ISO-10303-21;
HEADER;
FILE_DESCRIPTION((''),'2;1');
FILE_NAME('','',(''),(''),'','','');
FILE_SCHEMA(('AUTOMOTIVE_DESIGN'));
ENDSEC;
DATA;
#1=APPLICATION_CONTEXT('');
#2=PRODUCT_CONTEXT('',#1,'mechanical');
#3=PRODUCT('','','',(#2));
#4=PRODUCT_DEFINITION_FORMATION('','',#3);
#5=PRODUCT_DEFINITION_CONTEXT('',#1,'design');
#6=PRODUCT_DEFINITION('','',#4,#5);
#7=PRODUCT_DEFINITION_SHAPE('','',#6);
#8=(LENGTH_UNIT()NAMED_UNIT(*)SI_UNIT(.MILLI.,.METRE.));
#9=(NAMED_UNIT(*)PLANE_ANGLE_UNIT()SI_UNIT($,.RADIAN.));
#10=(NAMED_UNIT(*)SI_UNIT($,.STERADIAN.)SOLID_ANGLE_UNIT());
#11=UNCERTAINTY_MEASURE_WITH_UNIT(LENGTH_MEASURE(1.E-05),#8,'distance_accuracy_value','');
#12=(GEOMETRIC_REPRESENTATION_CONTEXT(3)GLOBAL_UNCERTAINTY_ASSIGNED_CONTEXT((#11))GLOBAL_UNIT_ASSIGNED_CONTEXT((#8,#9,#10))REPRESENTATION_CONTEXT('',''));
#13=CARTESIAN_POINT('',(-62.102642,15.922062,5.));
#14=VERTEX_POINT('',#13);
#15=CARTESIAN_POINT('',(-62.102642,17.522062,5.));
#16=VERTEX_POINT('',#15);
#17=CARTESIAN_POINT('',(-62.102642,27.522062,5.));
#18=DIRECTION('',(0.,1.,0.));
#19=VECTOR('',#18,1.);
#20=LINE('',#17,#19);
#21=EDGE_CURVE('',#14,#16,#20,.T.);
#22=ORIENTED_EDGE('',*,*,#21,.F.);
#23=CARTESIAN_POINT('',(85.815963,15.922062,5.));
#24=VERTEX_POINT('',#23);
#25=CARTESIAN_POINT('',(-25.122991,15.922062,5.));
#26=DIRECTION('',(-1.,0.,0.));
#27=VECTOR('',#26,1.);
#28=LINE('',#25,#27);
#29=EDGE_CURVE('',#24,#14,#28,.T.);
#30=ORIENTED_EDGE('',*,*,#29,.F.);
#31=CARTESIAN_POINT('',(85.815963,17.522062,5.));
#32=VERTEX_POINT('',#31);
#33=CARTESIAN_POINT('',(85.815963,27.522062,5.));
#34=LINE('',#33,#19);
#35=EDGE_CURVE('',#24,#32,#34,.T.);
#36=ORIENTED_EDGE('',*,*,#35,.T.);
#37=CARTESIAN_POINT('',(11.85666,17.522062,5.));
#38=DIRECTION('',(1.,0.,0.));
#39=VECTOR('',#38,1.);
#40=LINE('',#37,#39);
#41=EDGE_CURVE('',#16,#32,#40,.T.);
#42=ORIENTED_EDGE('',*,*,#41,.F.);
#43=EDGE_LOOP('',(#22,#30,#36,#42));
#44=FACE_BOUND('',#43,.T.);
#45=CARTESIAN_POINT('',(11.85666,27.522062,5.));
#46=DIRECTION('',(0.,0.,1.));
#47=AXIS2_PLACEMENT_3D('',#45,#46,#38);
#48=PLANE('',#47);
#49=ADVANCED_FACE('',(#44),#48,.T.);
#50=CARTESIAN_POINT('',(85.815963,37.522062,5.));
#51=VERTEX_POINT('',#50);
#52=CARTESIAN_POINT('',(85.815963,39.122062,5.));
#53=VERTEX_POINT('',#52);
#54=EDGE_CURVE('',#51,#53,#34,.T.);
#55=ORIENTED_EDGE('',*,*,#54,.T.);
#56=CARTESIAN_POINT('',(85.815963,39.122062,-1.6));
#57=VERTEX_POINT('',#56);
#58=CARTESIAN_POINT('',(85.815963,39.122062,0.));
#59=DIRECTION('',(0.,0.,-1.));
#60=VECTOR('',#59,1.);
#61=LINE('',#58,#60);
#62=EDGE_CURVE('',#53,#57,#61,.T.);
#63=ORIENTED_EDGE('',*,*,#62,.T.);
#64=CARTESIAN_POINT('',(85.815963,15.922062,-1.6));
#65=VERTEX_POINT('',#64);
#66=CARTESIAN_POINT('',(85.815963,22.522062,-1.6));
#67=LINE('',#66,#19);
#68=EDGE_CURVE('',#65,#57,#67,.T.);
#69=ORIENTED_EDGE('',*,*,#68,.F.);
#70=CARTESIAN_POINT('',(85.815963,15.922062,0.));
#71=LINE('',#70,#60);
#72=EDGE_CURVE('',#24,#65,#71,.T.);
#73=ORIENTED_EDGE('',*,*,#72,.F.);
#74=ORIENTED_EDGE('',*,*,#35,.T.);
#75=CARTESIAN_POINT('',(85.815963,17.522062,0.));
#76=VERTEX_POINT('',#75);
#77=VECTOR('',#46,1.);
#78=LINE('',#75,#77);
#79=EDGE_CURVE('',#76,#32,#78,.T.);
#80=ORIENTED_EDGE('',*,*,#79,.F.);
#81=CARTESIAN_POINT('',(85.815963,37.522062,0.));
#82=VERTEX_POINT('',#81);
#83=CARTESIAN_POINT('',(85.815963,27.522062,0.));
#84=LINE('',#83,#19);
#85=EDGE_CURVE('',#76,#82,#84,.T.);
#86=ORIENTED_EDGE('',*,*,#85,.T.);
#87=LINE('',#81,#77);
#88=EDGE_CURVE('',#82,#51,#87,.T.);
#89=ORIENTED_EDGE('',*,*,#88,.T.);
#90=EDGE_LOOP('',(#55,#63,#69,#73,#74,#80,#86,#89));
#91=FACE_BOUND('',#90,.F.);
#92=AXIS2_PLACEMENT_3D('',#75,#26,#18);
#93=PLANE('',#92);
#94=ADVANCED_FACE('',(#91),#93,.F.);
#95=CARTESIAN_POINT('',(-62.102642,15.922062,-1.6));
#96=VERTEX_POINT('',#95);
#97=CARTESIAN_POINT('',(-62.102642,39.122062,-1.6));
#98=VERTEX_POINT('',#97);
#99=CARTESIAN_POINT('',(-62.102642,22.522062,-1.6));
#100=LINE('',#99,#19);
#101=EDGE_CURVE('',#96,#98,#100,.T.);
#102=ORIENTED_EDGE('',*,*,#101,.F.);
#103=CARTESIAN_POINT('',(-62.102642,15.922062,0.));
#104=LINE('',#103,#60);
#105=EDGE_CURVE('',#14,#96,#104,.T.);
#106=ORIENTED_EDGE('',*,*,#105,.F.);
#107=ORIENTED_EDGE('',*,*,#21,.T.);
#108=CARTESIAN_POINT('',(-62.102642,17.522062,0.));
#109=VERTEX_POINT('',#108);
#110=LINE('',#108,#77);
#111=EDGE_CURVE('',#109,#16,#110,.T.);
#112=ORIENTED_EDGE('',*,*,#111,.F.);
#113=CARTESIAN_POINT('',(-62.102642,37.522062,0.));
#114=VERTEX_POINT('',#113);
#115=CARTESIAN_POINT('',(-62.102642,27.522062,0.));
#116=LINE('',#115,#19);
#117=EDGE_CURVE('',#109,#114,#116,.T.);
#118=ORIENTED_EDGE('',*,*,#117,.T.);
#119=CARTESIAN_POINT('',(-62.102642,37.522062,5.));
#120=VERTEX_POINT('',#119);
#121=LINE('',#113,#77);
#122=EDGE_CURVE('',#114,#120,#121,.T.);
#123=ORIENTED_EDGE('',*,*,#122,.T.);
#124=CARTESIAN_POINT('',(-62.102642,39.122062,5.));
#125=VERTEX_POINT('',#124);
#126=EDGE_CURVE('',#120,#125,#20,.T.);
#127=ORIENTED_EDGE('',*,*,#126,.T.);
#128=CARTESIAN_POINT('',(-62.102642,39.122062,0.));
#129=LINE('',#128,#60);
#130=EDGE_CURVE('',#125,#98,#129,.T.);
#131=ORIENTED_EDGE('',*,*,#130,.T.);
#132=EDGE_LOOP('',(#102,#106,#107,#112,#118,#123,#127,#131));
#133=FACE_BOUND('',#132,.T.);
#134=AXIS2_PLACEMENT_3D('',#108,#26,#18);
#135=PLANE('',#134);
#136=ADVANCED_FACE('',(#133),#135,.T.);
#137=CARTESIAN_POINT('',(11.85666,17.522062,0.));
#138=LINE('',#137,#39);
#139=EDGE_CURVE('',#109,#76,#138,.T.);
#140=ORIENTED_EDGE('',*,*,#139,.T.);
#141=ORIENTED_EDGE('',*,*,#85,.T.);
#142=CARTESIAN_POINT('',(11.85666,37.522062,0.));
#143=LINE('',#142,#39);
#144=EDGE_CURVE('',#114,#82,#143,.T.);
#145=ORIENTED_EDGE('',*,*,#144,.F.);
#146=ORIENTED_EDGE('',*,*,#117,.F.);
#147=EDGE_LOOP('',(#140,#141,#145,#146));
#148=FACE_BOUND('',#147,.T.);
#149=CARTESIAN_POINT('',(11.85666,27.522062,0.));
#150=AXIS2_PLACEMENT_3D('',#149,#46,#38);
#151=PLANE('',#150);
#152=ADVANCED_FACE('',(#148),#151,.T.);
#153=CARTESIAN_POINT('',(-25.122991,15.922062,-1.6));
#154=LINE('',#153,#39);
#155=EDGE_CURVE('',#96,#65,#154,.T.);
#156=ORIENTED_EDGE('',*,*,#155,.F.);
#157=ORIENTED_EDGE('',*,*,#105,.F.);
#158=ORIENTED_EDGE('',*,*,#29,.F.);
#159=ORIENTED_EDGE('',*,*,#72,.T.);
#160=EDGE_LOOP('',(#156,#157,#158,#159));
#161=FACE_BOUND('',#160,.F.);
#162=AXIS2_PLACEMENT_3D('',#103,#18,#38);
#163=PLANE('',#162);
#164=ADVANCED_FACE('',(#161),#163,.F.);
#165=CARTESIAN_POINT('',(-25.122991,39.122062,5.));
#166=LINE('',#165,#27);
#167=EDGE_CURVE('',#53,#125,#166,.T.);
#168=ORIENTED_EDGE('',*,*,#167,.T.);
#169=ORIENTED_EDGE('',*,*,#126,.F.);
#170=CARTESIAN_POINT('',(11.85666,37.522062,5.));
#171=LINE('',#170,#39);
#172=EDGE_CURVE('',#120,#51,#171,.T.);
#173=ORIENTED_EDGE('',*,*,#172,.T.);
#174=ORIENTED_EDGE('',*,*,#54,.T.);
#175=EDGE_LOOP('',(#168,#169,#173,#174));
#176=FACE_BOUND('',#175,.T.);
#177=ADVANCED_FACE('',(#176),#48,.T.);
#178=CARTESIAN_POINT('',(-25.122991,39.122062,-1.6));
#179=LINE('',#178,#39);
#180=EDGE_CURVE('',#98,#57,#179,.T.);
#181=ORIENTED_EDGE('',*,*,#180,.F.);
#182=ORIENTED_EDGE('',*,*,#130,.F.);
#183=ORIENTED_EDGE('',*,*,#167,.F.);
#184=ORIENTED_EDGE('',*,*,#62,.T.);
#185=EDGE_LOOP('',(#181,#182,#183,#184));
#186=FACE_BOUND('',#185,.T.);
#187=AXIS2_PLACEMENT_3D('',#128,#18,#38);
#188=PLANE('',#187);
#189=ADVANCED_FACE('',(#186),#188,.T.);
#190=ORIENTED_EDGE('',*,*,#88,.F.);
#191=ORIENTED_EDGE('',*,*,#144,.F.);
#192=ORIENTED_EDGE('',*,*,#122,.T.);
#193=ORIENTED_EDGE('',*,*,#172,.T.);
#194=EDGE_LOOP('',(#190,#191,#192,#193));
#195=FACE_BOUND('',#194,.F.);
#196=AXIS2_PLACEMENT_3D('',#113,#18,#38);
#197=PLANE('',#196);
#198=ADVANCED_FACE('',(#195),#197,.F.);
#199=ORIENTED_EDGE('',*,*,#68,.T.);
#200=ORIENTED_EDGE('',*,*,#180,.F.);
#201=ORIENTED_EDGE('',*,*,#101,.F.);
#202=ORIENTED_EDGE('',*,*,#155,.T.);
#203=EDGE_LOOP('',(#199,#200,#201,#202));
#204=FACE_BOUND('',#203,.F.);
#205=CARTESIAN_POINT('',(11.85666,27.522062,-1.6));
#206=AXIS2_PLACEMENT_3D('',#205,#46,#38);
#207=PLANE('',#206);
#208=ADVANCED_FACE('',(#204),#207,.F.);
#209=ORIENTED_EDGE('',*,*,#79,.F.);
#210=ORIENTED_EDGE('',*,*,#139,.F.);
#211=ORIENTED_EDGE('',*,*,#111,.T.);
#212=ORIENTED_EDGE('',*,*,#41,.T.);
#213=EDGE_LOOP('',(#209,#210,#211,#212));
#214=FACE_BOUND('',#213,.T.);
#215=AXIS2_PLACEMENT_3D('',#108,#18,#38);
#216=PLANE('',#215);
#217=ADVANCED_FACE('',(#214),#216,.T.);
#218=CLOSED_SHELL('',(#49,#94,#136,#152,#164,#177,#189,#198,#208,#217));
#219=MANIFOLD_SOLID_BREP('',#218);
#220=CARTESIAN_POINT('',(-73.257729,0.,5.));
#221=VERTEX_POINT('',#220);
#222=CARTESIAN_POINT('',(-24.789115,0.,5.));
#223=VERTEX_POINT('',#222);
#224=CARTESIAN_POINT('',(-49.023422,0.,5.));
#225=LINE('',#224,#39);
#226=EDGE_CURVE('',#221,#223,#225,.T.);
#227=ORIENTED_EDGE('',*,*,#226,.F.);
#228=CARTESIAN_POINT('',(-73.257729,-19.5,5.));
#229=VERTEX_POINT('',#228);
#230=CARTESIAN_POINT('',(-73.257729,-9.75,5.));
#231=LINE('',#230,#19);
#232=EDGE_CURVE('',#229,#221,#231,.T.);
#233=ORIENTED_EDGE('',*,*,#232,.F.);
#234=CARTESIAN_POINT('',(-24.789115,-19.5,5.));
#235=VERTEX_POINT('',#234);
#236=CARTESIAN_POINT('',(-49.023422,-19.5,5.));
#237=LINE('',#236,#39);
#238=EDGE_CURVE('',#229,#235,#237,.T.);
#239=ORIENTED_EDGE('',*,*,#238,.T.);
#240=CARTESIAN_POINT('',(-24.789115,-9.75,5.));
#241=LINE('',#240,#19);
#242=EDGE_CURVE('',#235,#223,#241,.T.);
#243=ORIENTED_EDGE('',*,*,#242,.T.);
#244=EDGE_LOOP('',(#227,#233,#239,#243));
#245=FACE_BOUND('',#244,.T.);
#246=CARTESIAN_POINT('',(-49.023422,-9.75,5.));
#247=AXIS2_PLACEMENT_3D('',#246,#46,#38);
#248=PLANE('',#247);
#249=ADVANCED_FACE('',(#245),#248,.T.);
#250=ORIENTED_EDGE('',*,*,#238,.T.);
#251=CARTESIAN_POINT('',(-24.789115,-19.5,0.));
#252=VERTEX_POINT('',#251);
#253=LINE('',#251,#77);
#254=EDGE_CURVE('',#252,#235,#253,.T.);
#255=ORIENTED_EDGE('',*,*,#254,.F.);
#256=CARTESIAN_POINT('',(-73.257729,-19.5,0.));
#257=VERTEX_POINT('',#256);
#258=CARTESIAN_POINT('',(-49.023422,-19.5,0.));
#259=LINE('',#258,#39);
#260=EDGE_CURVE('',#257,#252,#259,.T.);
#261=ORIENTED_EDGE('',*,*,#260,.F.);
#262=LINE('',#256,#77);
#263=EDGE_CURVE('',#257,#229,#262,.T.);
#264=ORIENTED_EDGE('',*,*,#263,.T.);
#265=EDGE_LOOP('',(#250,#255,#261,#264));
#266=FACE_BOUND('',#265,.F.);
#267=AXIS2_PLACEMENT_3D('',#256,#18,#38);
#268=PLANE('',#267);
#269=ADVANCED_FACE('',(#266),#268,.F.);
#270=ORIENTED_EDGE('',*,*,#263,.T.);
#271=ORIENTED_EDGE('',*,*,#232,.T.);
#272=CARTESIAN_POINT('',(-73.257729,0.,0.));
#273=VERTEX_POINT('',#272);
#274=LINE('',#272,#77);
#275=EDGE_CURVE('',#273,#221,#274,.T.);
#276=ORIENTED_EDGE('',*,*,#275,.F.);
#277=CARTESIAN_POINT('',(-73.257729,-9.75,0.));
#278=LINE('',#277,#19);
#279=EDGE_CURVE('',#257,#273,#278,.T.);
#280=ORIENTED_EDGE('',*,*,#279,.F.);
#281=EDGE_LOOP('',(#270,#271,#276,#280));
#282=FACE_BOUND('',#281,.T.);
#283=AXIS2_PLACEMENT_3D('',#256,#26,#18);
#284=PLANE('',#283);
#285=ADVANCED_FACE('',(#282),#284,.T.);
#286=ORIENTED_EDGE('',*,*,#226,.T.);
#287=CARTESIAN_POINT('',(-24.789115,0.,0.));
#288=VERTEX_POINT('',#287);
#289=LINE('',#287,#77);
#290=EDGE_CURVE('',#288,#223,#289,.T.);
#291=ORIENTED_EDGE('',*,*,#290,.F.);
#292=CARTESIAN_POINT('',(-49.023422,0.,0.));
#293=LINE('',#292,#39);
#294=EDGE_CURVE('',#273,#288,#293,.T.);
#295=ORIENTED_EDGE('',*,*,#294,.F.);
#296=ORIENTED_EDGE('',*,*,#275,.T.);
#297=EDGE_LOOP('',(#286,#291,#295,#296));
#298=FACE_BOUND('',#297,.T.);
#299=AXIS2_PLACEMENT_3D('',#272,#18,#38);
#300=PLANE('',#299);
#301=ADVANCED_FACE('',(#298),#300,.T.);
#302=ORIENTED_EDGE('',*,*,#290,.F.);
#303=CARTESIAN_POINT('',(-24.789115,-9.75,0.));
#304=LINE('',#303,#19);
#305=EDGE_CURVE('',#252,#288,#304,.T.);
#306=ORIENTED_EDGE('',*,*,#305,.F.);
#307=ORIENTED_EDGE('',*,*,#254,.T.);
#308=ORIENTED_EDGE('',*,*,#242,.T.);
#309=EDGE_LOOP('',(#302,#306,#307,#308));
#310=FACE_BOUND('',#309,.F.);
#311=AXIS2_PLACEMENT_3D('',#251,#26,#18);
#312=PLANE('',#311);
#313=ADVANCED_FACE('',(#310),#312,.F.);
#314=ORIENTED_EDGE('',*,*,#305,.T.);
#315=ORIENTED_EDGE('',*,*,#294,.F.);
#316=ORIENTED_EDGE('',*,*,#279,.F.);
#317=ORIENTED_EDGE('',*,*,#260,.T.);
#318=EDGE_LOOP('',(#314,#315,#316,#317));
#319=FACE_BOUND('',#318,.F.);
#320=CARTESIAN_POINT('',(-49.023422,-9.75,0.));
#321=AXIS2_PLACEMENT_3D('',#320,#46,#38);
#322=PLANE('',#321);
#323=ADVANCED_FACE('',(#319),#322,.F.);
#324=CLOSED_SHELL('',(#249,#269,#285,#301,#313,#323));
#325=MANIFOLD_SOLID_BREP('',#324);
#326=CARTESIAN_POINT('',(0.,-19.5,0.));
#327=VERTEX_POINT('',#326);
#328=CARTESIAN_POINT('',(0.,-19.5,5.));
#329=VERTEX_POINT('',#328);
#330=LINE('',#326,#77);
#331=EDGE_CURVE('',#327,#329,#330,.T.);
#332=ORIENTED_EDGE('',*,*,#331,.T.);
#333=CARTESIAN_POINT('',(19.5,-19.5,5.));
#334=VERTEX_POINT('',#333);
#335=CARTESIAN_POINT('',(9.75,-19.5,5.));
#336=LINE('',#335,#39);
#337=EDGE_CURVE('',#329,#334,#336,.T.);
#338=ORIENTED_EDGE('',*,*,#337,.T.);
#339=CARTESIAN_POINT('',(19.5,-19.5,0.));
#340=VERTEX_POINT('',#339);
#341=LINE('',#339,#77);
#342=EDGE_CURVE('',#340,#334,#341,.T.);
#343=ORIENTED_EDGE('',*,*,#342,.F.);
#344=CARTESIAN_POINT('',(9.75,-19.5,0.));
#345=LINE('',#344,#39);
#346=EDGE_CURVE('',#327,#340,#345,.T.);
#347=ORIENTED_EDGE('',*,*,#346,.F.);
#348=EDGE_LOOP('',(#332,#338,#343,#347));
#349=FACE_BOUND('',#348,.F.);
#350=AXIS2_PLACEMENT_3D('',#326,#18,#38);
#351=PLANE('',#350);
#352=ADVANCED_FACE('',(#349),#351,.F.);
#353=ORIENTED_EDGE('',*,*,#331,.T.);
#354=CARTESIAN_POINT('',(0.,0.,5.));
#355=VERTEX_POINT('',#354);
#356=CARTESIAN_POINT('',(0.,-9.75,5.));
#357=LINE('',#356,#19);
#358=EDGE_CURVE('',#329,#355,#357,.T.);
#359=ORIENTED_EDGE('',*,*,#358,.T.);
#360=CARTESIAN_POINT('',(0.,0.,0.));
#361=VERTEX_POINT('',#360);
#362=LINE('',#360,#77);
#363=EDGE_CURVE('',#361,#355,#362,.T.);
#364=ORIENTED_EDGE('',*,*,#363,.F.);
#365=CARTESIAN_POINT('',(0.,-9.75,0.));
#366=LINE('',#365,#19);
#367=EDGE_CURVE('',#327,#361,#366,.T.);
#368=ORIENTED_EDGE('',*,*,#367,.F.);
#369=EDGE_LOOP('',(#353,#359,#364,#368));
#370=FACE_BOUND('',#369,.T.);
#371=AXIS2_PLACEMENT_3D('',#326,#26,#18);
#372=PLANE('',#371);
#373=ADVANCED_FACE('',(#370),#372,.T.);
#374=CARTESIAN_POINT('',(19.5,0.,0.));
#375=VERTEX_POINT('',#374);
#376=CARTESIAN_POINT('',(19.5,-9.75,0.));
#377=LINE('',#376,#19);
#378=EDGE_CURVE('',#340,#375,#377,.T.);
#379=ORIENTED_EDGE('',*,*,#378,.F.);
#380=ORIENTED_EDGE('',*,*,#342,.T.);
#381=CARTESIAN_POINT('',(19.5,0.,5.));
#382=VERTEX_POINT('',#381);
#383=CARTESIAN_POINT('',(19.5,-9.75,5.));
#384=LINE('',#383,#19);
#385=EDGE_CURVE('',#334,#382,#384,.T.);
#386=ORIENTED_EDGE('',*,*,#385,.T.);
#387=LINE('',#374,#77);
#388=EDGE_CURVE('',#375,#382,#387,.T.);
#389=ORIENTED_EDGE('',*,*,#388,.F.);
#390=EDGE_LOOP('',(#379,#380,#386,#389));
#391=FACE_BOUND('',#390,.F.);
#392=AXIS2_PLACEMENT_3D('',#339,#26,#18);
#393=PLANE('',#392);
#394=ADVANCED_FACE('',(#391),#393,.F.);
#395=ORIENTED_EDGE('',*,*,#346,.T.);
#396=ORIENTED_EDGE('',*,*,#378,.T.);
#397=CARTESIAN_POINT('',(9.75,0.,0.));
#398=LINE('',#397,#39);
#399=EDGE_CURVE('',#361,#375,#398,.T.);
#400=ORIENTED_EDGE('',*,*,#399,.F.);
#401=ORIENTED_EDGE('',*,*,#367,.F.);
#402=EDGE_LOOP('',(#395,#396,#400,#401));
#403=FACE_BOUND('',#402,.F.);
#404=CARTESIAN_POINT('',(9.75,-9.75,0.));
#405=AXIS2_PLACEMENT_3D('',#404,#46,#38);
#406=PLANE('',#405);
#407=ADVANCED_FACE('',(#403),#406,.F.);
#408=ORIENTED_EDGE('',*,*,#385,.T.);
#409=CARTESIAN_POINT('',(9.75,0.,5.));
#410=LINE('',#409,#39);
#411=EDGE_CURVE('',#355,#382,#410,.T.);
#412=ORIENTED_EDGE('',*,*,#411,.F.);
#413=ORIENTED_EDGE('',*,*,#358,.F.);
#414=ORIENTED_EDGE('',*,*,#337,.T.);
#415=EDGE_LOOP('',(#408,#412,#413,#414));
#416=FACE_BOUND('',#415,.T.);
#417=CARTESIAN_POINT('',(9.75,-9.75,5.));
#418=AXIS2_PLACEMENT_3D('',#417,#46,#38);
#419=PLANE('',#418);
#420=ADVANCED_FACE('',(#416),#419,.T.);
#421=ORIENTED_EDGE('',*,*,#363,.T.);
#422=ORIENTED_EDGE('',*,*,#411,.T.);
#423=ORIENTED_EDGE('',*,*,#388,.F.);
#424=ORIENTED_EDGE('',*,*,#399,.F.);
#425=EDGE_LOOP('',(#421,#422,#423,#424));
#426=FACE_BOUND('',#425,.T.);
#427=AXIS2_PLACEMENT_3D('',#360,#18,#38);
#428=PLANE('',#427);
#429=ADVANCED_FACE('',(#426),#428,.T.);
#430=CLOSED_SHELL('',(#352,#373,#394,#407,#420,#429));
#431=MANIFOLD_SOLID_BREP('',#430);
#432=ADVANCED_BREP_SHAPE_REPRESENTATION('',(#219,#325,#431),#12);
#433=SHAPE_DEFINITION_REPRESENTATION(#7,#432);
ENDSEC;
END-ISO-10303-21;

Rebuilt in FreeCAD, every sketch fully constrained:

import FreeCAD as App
import Part
import Sketcher
from FreeCAD import Vector
Q = App.Units.Quantity


def faces_at(feature, points):
    """Names of the faces that lie closest to the given points."""
    faces = feature.Shape.Faces
    near = lambda p: min(range(len(faces)), key=lambda i: faces[i].distToShape(Part.Vertex(*p))[0])
    return sorted({f"Face{near(p) + 1}" for p in points})


def add_polygon(sketch, points):
    """Adds a closed chain of lines whose ends are joined by coincident constraints."""
    first, n = sketch.GeometryCount, len(points)
    for a, b in zip(points, points[1:] + points[:1]):
        sketch.addGeometry(Part.LineSegment(App.Vector(*a, 0), App.Vector(*b, 0)), False)
    for i in range(n):
        sketch.addConstraint(Sketcher.Constraint("Coincident", first + i, 2, first + (i + 1) % n, 1))

doc = App.newDocument("Part")
body = doc.addObject("PartDesign::Body", "Body")

# Sketch on XY plane
sketch1 = body.newObject("Sketcher::SketchObject", "Sketch")
sketch1.AttachmentSupport = (doc.getObject("XY_Plane"), [""])
sketch1.MapMode = "FlatFace"
add_polygon(sketch1, [(0, 0), (0, -20), (20, -20), (20, 0)])  # lines 0-3
sketch1.addConstraint(Sketcher.Constraint("Vertical", 0))
sketch1.addConstraint(Sketcher.Constraint("Horizontal", 1))
sketch1.addConstraint(Sketcher.Constraint("Vertical", 2))
sketch1.addConstraint(Sketcher.Constraint("Horizontal", 3))
sketch1.addConstraint(Sketcher.Constraint("Coincident", 3, 2, -1, 1))
sketch1.addConstraint(Sketcher.Constraint("Equal", 3, 0))
sketch1.addConstraint(Sketcher.Constraint("DistanceX", 1, 1, 1, 2, Q("19.5 mm")))
pad1 = body.newObject("PartDesign::Pad", "Pad")
pad1.Profile = sketch1
pad1.Length = 5
body2 = doc.addObject("PartDesign::Body", "Body001")

# Sketch on XY plane
sketch2 = body2.newObject("Sketcher::SketchObject", "Sketch001")
sketch2.AttachmentSupport = (doc.getObject("XY_Plane001"), [""])
sketch2.MapMode = "FlatFace"
add_polygon(sketch2, [(-73, 0), (-73, -20), (-25, -20), (-25, 0)])  # lines 0-3
sketch2.addConstraint(Sketcher.Constraint("Vertical", 0))
sketch2.addConstraint(Sketcher.Constraint("Horizontal", 1))
sketch2.addConstraint(Sketcher.Constraint("Vertical", 2))
sketch2.addConstraint(Sketcher.Constraint("Horizontal", 3))
sketch2.addConstraint(Sketcher.Constraint("PointOnObject", 2, 2, -1))
sketch2.addConstraint(Sketcher.Constraint("DistanceY", 0, 2, 0, 1, Q("19.5 mm")))
sketch2.addConstraint(Sketcher.Constraint("DistanceX", 1, 1, 1, 2, Q("48.468614 mm")))
sketch2.addConstraint(Sketcher.Constraint("DistanceX", 0, 2, -1, 1, Q("73.257729 mm")))
pad2 = body2.newObject("PartDesign::Pad", "Pad001")
pad2.Profile = sketch2
pad2.Length = 5
body3 = doc.addObject("PartDesign::Body", "Body002")

# Sketch on XY plane
sketch3 = body3.newObject("Sketcher::SketchObject", "Sketch002")
sketch3.AttachmentSupport = (doc.getObject("XY_Plane002"), [""])
sketch3.MapMode = "FlatFace"
add_polygon(sketch3, [(-62, 38), (-62, 18), (86, 18), (86, 38)])  # lines 0-3
sketch3.addConstraint(Sketcher.Constraint("Vertical", 0))
sketch3.addConstraint(Sketcher.Constraint("Horizontal", 1))
sketch3.addConstraint(Sketcher.Constraint("Vertical", 2))
sketch3.addConstraint(Sketcher.Constraint("Horizontal", 3))
sketch3.addConstraint(Sketcher.Constraint("DistanceY", 0, 2, 0, 1, Q("20 mm")))
sketch3.addConstraint(Sketcher.Constraint("DistanceX", 1, 1, 1, 2, Q("147.918605 mm")))
sketch3.addConstraint(Sketcher.Constraint("DistanceY", -1, 1, 0, 2, Q("17.522062 mm")))
sketch3.addConstraint(Sketcher.Constraint("DistanceX", 0, 2, -1, 1, Q("62.102642 mm")))
pad3 = body3.newObject("PartDesign::Pad", "Pad002")
pad3.Profile = sketch3
pad3.Length = 5
doc.recompute()

thickness = body3.newObject("PartDesign::Thickness", "Thickness")
thickness.Base = (pad3, faces_at(pad3, [(11.857, 27.522, 5), (-62.103, 27.522, 2.5), (85.816, 27.522, 2.5)]))
thickness.Value = 1.6
thickness.Reversed = False
thickness.Join = "Intersection"

doc.recompute()
